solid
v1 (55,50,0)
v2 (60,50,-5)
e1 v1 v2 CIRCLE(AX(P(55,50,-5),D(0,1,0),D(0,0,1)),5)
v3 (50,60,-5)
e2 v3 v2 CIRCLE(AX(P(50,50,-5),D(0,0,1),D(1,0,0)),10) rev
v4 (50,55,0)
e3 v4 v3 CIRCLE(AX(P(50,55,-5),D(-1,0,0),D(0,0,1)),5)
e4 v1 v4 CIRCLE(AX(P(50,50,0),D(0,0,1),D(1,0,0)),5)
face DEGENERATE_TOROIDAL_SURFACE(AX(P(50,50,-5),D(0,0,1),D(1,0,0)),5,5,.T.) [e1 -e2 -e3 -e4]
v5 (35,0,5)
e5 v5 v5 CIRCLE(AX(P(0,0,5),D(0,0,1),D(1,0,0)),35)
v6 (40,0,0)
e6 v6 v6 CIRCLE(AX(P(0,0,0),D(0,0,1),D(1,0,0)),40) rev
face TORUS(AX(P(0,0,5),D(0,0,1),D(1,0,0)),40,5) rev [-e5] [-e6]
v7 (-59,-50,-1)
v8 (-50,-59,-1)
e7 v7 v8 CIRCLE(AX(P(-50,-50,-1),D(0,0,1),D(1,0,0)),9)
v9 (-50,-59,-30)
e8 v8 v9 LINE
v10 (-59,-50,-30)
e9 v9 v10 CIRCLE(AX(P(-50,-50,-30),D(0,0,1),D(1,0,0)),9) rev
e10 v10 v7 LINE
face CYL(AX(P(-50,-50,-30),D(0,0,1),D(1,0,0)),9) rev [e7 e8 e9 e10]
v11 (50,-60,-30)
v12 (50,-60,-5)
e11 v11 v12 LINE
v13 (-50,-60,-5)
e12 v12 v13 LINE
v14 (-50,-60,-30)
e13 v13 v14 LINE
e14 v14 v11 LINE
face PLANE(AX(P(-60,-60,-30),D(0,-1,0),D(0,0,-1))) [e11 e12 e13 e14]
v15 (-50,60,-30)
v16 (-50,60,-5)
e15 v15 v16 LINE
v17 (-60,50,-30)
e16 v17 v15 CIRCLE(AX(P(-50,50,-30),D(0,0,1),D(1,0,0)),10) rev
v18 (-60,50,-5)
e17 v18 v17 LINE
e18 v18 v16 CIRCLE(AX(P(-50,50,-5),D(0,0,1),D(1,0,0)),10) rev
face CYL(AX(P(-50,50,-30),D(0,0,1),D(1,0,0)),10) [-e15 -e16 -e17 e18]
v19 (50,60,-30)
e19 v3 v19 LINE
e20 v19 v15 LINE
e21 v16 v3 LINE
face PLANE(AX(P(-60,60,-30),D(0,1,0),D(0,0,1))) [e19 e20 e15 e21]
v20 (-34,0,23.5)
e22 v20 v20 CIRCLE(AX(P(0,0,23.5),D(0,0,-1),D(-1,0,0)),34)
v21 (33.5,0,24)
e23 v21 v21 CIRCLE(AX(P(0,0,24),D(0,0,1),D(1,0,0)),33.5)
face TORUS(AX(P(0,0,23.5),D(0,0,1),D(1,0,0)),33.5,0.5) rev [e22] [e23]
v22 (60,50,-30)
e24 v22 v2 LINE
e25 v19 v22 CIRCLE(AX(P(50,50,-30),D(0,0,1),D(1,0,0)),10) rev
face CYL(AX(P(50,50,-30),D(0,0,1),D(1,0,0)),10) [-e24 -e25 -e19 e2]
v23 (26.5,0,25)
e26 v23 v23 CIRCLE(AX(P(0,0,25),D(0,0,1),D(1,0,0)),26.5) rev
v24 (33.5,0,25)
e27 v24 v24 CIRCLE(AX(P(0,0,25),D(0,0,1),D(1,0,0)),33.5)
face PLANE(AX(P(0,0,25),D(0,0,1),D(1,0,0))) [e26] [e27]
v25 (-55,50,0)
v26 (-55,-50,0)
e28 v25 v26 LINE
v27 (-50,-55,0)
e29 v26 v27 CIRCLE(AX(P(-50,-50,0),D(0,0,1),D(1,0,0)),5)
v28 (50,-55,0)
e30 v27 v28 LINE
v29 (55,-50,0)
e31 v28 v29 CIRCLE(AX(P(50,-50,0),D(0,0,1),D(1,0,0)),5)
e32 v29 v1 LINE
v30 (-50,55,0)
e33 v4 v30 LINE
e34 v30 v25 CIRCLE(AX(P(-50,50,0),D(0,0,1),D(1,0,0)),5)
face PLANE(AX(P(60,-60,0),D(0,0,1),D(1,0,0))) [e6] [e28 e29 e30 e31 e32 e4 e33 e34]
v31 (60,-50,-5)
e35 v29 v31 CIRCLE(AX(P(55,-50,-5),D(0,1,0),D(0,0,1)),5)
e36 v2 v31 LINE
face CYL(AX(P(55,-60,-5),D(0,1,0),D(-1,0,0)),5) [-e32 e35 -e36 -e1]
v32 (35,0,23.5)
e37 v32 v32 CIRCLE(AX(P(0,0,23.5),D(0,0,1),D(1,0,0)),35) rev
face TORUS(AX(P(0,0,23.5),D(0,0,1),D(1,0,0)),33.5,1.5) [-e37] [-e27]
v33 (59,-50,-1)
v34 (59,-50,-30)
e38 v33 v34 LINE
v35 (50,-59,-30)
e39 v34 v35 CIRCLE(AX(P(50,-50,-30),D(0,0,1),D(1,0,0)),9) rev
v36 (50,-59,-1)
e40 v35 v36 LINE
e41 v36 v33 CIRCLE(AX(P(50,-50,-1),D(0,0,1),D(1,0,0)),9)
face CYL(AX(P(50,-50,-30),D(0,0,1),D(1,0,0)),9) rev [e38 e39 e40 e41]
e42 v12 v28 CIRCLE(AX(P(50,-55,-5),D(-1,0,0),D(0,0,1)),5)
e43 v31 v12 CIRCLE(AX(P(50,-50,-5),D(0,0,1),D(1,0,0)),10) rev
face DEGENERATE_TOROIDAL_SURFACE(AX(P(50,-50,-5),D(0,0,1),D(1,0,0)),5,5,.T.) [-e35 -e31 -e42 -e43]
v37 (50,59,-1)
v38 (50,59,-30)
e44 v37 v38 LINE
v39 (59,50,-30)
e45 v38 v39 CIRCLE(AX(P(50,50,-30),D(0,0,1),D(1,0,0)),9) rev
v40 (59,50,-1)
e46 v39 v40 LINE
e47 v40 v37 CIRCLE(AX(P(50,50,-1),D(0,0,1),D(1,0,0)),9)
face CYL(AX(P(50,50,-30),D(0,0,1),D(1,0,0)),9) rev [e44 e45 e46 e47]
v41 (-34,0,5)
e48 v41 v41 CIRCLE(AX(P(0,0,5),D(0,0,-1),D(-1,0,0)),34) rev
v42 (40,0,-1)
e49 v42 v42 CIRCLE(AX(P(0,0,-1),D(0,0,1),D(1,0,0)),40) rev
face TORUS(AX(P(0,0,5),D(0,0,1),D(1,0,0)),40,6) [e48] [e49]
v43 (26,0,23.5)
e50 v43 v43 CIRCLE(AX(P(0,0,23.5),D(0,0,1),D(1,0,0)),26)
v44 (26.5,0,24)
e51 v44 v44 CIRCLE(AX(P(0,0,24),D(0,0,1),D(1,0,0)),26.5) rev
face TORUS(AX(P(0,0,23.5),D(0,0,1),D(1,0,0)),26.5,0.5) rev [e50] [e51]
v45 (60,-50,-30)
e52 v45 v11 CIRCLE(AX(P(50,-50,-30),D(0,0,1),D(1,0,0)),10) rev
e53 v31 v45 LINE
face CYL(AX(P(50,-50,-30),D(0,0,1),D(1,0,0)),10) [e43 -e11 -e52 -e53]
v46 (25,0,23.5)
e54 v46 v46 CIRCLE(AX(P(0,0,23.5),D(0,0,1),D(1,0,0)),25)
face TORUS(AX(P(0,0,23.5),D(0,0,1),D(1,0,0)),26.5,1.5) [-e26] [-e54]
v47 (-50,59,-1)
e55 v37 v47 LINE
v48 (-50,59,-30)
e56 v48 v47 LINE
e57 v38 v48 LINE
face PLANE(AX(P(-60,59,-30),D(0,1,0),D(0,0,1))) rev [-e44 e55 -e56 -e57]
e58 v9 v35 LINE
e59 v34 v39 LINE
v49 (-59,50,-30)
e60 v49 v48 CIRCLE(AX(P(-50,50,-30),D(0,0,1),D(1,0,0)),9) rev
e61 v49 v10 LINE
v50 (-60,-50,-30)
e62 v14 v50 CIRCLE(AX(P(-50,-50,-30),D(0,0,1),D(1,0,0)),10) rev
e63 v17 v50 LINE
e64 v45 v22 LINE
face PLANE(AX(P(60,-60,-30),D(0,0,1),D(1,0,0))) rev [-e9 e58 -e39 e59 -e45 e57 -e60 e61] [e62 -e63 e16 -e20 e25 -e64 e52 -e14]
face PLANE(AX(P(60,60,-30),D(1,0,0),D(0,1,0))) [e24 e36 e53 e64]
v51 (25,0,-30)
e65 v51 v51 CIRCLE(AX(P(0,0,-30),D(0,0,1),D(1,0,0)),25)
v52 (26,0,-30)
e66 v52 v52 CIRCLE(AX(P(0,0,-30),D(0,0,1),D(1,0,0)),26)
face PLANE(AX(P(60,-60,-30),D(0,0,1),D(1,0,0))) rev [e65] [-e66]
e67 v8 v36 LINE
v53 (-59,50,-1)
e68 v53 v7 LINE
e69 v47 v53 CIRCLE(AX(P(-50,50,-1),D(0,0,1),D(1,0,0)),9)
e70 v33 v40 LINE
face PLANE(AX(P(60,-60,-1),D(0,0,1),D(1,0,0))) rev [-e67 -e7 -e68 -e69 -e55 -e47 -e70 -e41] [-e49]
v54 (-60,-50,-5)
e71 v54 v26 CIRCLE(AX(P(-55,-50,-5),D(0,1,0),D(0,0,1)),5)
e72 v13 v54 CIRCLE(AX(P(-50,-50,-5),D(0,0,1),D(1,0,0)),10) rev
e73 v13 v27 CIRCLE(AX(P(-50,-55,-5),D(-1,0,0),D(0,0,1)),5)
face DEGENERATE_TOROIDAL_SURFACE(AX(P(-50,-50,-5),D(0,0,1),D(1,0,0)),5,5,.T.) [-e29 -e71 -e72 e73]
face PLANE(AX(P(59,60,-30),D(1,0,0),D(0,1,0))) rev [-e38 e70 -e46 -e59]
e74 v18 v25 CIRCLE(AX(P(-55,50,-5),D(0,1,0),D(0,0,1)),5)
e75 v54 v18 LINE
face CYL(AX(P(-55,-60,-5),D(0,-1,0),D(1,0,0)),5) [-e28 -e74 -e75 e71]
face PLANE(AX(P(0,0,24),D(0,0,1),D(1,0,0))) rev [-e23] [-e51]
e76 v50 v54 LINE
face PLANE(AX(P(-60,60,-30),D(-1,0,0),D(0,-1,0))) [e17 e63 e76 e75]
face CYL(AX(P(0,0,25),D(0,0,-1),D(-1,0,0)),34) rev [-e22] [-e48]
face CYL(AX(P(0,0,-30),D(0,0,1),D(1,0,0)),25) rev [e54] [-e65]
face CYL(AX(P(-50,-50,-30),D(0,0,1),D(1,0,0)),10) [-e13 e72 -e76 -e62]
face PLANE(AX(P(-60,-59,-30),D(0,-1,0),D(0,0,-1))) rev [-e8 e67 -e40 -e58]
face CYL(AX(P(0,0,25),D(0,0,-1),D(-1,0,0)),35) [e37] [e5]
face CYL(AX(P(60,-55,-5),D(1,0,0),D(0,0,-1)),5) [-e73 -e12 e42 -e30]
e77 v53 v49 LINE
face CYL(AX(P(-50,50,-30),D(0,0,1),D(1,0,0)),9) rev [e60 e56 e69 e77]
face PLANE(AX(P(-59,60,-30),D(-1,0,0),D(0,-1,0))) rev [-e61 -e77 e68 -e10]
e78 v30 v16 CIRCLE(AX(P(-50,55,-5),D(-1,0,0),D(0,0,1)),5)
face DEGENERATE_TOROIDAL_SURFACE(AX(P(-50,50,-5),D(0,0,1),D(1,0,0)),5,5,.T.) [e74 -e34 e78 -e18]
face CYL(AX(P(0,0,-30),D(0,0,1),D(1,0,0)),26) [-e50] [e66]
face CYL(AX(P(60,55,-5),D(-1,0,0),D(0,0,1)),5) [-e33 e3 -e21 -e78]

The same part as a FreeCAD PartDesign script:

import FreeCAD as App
import Part
import Sketcher

V = App.Vector


def edges_at(feature, points):
    """Names of the edges that pass closest to the given points."""
    edges = feature.Shape.Edges
    near = lambda p: min(range(len(edges)), key=lambda i: edges[i].distToShape(Part.Vertex(*p))[0])
    return sorted({f"Edge{near(p) + 1}" for p in points})


def faces_at(feature, points):
    """Names of the faces that lie closest to the given points."""
    faces = feature.Shape.Faces
    near = lambda p: min(range(len(faces)), key=lambda i: faces[i].distToShape(Part.Vertex(*p))[0])
    return sorted({f"Face{near(p) + 1}" for p in points})


def add_polygon(sketch, points):
    """Adds a closed chain of lines whose ends are joined by coincident constraints."""
    first, n = sketch.GeometryCount, len(points)
    for a, b in zip(points, points[1:] + points[:1]):
        sketch.addGeometry(Part.LineSegment(App.Vector(*a, 0), App.Vector(*b, 0)), False)
    for i in range(n):
        sketch.addConstraint(Sketcher.Constraint("Coincident", first + i, 2, first + (i + 1) % n, 1))

doc = App.newDocument("Part")
body = doc.addObject("PartDesign::Body", "Body")

# Sketch on XY plane
sketch1 = body.newObject("Sketcher::SketchObject", "Sketch")
sketch1.AttachmentSupport = (doc.getObject("XY_Plane"), [""])
sketch1.MapMode = "FlatFace"
add_polygon(sketch1, [(-60, 60), (-60, -60), (60, -60), (60, 60)])  # lines 0-3
sketch1.addConstraint(Sketcher.Constraint("Vertical", 0))
sketch1.addConstraint(Sketcher.Constraint("Horizontal", 1))
sketch1.addConstraint(Sketcher.Constraint("Vertical", 2))
sketch1.addConstraint(Sketcher.Constraint("Horizontal", 3))
sketch1.addConstraint(Sketcher.Constraint("Symmetric", 0, 2, 2, 2, -1, 1))
sketch1.addConstraint(Sketcher.Constraint("Equal", 3, 0))
sketch1.addConstraint(Sketcher.Constraint("DistanceX", 1, 1, 1, 2, 120.0))
pad1 = body.newObject("PartDesign::Pad", "Pad")
pad1.Profile = sketch1
pad1.Length = 30
pad1.Reversed = True

# Sketch on XY plane
sketch2 = body.newObject("Sketcher::SketchObject", "Sketch001")
sketch2.AttachmentSupport = (doc.getObject("XY_Plane"), [""])
sketch2.MapMode = "FlatFace"
sketch2.addGeometry(Part.Circle(V(0, 0, 0), V(0, 0, 1), 35), False)
sketch2.addConstraint(Sketcher.Constraint("Coincident", 0, 3, -1, 1))
sketch2.addConstraint(Sketcher.Constraint("Diameter", 0, 70.0))
pad2 = body.newObject("PartDesign::Pad", "Pad001")
pad2.Profile = sketch2
pad2.Length = 25
doc.recompute()

fillet = body.newObject("PartDesign::Fillet", "Fillet")
fillet.Base = (pad2, edges_at(pad2, [(60, 60, -15)]))
fillet.Radius = 10
doc.recompute()

fillet2 = body.newObject("PartDesign::Fillet", "Fillet001")
fillet2.Base = (fillet, edges_at(fillet, [(-60, 60, -15)]))
fillet2.Radius = 10
doc.recompute()

fillet3 = body.newObject("PartDesign::Fillet", "Fillet002")
fillet3.Base = (fillet2, edges_at(fillet2, [(60, -60, -15), (-60, -60, -15)]))
fillet3.Radius = 10
doc.recompute()

fillet4 = body.newObject("PartDesign::Fillet", "Fillet003")
fillet4.Base = (fillet3, edges_at(fillet3, [(-35, 0, 0)]))
fillet4.Radius = 5

# Sketch on XY plane
sketch3 = body.newObject("Sketcher::SketchObject", "Sketch002")
sketch3.AttachmentSupport = (doc.getObject("XY_Plane"), [""])
sketch3.MapMode = "FlatFace"
sketch3.AttachmentOffset = App.Placement(V(0, 0, 25), App.Rotation())
sketch3.addGeometry(Part.Circle(V(0, 0, 0), V(0, 0, 1), 25), False)
sketch3.addConstraint(Sketcher.Constraint("Coincident", 0, 3, -1, 1))
sketch3.addConstraint(Sketcher.Constraint("Diameter", 0, 50.0))
pocket1 = body.newObject("PartDesign::Pocket", "Pocket")
pocket1.Profile = sketch3
pocket1.Type = "ThroughAll"
doc.recompute()

fillet5 = body.newObject("PartDesign::Fillet", "Fillet004")
fillet5.Base = (pocket1, edges_at(pocket1, [(-35, 0, 25), (-25, 0, 25)]))
fillet5.Radius = 1.5
doc.recompute()

thickness = body.newObject("PartDesign::Thickness", "Thickness")
thickness.Base = (fillet5, faces_at(fillet5, [(-24, -24, -30)]))
thickness.Value = 1
thickness.Reversed = True
thickness.Join = "Intersection"
doc.recompute()

fillet6 = body.newObject("PartDesign::Fillet", "Fillet005")
fillet6.Base = (thickness, edges_at(thickness, [
    (0, 60, 0),
    (57.071, 57.071, 0),
    (-60, 0, 0),
    (-57.071, 57.071, 0),
    (0, -60, 0),
    (60, 0, 0),
    (57.071, -57.071, 0),
    (-57.071, -57.071, 0),
]))
fillet6.Radius = 5

doc.recompute()
